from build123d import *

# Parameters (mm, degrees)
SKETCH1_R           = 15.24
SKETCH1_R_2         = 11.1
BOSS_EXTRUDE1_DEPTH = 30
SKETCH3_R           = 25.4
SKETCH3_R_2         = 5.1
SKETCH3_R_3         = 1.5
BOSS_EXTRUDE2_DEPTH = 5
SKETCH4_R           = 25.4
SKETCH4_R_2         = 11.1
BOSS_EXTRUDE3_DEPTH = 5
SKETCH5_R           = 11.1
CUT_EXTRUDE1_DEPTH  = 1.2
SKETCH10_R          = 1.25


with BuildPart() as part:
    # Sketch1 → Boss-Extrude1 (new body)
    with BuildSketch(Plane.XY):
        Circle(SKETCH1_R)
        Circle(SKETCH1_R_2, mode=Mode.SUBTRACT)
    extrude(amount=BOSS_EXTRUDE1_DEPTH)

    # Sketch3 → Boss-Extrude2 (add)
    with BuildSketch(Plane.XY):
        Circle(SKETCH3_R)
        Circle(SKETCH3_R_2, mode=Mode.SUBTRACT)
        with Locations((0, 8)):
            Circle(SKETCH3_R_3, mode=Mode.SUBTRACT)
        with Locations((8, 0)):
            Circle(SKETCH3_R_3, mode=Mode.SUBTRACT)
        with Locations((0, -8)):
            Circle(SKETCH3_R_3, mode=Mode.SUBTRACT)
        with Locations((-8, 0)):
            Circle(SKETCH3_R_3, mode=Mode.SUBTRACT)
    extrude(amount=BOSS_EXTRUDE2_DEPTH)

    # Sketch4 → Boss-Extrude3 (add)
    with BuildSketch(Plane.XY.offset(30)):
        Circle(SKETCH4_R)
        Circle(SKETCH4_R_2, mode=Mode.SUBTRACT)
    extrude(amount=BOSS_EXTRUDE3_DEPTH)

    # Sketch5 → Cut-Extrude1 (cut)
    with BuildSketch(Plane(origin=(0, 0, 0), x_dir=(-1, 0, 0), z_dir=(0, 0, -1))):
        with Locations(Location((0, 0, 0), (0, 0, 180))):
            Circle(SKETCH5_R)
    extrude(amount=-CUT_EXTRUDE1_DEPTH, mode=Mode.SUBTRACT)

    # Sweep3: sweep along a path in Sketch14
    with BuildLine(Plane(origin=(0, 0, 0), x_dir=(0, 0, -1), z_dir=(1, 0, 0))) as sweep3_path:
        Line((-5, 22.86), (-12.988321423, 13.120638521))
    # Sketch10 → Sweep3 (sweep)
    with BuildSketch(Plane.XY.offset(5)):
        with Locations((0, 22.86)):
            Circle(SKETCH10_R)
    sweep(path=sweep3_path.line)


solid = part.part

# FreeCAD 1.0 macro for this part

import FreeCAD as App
import Part
import Sketcher

V = App.Vector
Q = App.Units.Quantity

doc = App.newDocument("Part")
body = doc.addObject("PartDesign::Body", "Body")

# Sketch on XY plane
sketch1 = body.newObject("Sketcher::SketchObject", "Sketch")
sketch1.AttachmentSupport = (doc.getObject("XY_Plane"), [""])
sketch1.MapMode = "FlatFace"
sketch1.addGeometry([
    Part.Circle(V(0, 0, 0), V(0, 0, 1), 15),
    Part.Circle(V(0, 0, 0), V(0, 0, 1), 11),
], False)
sketch1.addConstraint([
    Sketcher.Constraint("Coincident", 0, 3, -1, 1),
    Sketcher.Constraint("Coincident", 1, 3, -1, 1),
    Sketcher.Constraint("Diameter", 1, Q("22.2 mm")),
    Sketcher.Constraint("Diameter", 0, Q("30.48 mm")),
])
pad1 = body.newObject("PartDesign::Pad", "Pad")
pad1.Profile = sketch1
pad1.Length = 30

# Sketch on XY plane
sketch2 = body.newObject("Sketcher::SketchObject", "Sketch001")
sketch2.AttachmentSupport = (doc.getObject("XY_Plane"), [""])
sketch2.MapMode = "FlatFace"
sketch2.addGeometry([
    Part.Circle(V(0, 0, 0), V(0, 0, 1), 25.4),  # 0
    Part.Circle(V(0, -8, 0), V(0, 0, 1), 1.5),  # 1
    Part.Circle(V(-8, 0, 0), V(0, 0, 1), 1.5),  # 2
    Part.Circle(V(0, 0, 0), V(0, 0, 1), 5.1),  # 3
    Part.Circle(V(8, 0, 0), V(0, 0, 1), 1.5),  # 4
    Part.Circle(V(0, 8, 0), V(0, 0, 1), 1.5),  # 5
], False)
sketch2.addConstraint([
    Sketcher.Constraint("Coincident", 0, 3, -1, 1),
    Sketcher.Constraint("Coincident", 3, 3, -1, 1),
    Sketcher.Constraint("Equal", 1, 2),
    Sketcher.Constraint("Equal", 2, 4),
    Sketcher.Constraint("Equal", 4, 5),
    Sketcher.Constraint("Symmetric", 2, 3, 4, 3, -1, 1),
    Sketcher.Constraint("Symmetric", 1, 3, 5, 3, -1, 1),
    Sketcher.Constraint("PointOnObject", 1, 3, -2),
    Sketcher.Constraint("PointOnObject", 2, 3, -1),
    Sketcher.Constraint("Diameter", 1, Q("3 mm")),
    Sketcher.Constraint("Diameter", 0, Q("50.8 mm")),
    Sketcher.Constraint("Diameter", 3, Q("10.2 mm")),
    Sketcher.Constraint("DistanceY", 1, 3, -1, 1, Q("8 mm")),
    Sketcher.Constraint("DistanceX", 2, 3, -1, 1, Q("8 mm")),
])
pad2 = body.newObject("PartDesign::Pad", "Pad001")
pad2.Profile = sketch2
pad2.Length = 5

# Sketch on XY plane
sketch3 = body.newObject("Sketcher::SketchObject", "Sketch002")
sketch3.AttachmentSupport = (doc.getObject("XY_Plane"), [""])
sketch3.MapMode = "FlatFace"
sketch3.AttachmentOffset = App.Placement(V(0, 0, 30), App.Rotation())
sketch3.addGeometry([
    Part.Circle(V(0, 0, 0), V(0, 0, 1), 25),
    Part.Circle(V(0, 0, 0), V(0, 0, 1), 11),
], False)
sketch3.addConstraint([
    Sketcher.Constraint("Coincident", 0, 3, -1, 1),
    Sketcher.Constraint("Coincident", 1, 3, -1, 1),
    Sketcher.Constraint("Diameter", 0, Q("50.8 mm")),
    Sketcher.Constraint("Diameter", 1, Q("22.2 mm")),
])
pad3 = body.newObject("PartDesign::Pad", "Pad002")
pad3.Profile = sketch3
pad3.Length = 5

# Sketch on XY plane
sketch4 = body.newObject("Sketcher::SketchObject", "Sketch003")
sketch4.AttachmentSupport = (doc.getObject("XY_Plane"), [""])
sketch4.MapMode = "FlatFace"
sketch4.addGeometry(Part.Circle(V(0, 0, 0), V(0, 0, 1), 11), False)
sketch4.addConstraint([
    Sketcher.Constraint("Coincident", 0, 3, -1, 1),
    Sketcher.Constraint("Diameter", 0, Q("22.2 mm")),
])
pocket1 = body.newObject("PartDesign::Pocket", "Pocket")
pocket1.Profile = sketch4
pocket1.Length = 1.2
pocket1.Reversed = True

# Sketch on XY plane
sketch5 = body.newObject("Sketcher::SketchObject", "Sketch004")
sketch5.AttachmentSupport = (doc.getObject("XY_Plane"), [""])
sketch5.MapMode = "FlatFace"
sketch5.AttachmentOffset = App.Placement(V(0, 0, 5), App.Rotation())
sketch5.addGeometry(Part.Circle(V(0, 22.9, 0), V(0, 0, 1), 1.2), False)
sketch5.addConstraint([
    Sketcher.Constraint("PointOnObject", 0, 3, -2),
    Sketcher.Constraint("Diameter", 0, Q("2.5 mm")),
    Sketcher.Constraint("DistanceY", -1, 1, 0, 3, Q("22.86 mm")),
])

# Sketch on an angled plane
sketch6 = body.newObject("Sketcher::SketchObject", "Sketch005")
sketch6.Placement = App.Placement(V(0, 11.645525, 14.198224), App.Rotation(V(0, 0.773188182, -0.634176659), V(1, 0, 0), V(0, -0.634176659, -0.773188182), "ZXY"))
sketch6.addGeometry(Part.LineSegment(V(15, 0, 0), V(2, 0, 0)), False)
sketch6.addConstraint([
    Sketcher.Constraint("Horizontal", 0),
    Sketcher.Constraint("PointOnObject", 0, 1, -1),
    Sketcher.Constraint("DistanceX", -1, 1, 0, 1, Q("14.504199 mm")),
    Sketcher.Constraint("DistanceX", 0, 2, 0, 1, Q("12.596366 mm")),
])
doc.recompute()

additivepipe = body.newObject("PartDesign::AdditivePipe", "AdditivePipe")
additivepipe.Profile = sketch5
additivepipe.Spine = (sketch6, ["Edge1"])

doc.recompute()
